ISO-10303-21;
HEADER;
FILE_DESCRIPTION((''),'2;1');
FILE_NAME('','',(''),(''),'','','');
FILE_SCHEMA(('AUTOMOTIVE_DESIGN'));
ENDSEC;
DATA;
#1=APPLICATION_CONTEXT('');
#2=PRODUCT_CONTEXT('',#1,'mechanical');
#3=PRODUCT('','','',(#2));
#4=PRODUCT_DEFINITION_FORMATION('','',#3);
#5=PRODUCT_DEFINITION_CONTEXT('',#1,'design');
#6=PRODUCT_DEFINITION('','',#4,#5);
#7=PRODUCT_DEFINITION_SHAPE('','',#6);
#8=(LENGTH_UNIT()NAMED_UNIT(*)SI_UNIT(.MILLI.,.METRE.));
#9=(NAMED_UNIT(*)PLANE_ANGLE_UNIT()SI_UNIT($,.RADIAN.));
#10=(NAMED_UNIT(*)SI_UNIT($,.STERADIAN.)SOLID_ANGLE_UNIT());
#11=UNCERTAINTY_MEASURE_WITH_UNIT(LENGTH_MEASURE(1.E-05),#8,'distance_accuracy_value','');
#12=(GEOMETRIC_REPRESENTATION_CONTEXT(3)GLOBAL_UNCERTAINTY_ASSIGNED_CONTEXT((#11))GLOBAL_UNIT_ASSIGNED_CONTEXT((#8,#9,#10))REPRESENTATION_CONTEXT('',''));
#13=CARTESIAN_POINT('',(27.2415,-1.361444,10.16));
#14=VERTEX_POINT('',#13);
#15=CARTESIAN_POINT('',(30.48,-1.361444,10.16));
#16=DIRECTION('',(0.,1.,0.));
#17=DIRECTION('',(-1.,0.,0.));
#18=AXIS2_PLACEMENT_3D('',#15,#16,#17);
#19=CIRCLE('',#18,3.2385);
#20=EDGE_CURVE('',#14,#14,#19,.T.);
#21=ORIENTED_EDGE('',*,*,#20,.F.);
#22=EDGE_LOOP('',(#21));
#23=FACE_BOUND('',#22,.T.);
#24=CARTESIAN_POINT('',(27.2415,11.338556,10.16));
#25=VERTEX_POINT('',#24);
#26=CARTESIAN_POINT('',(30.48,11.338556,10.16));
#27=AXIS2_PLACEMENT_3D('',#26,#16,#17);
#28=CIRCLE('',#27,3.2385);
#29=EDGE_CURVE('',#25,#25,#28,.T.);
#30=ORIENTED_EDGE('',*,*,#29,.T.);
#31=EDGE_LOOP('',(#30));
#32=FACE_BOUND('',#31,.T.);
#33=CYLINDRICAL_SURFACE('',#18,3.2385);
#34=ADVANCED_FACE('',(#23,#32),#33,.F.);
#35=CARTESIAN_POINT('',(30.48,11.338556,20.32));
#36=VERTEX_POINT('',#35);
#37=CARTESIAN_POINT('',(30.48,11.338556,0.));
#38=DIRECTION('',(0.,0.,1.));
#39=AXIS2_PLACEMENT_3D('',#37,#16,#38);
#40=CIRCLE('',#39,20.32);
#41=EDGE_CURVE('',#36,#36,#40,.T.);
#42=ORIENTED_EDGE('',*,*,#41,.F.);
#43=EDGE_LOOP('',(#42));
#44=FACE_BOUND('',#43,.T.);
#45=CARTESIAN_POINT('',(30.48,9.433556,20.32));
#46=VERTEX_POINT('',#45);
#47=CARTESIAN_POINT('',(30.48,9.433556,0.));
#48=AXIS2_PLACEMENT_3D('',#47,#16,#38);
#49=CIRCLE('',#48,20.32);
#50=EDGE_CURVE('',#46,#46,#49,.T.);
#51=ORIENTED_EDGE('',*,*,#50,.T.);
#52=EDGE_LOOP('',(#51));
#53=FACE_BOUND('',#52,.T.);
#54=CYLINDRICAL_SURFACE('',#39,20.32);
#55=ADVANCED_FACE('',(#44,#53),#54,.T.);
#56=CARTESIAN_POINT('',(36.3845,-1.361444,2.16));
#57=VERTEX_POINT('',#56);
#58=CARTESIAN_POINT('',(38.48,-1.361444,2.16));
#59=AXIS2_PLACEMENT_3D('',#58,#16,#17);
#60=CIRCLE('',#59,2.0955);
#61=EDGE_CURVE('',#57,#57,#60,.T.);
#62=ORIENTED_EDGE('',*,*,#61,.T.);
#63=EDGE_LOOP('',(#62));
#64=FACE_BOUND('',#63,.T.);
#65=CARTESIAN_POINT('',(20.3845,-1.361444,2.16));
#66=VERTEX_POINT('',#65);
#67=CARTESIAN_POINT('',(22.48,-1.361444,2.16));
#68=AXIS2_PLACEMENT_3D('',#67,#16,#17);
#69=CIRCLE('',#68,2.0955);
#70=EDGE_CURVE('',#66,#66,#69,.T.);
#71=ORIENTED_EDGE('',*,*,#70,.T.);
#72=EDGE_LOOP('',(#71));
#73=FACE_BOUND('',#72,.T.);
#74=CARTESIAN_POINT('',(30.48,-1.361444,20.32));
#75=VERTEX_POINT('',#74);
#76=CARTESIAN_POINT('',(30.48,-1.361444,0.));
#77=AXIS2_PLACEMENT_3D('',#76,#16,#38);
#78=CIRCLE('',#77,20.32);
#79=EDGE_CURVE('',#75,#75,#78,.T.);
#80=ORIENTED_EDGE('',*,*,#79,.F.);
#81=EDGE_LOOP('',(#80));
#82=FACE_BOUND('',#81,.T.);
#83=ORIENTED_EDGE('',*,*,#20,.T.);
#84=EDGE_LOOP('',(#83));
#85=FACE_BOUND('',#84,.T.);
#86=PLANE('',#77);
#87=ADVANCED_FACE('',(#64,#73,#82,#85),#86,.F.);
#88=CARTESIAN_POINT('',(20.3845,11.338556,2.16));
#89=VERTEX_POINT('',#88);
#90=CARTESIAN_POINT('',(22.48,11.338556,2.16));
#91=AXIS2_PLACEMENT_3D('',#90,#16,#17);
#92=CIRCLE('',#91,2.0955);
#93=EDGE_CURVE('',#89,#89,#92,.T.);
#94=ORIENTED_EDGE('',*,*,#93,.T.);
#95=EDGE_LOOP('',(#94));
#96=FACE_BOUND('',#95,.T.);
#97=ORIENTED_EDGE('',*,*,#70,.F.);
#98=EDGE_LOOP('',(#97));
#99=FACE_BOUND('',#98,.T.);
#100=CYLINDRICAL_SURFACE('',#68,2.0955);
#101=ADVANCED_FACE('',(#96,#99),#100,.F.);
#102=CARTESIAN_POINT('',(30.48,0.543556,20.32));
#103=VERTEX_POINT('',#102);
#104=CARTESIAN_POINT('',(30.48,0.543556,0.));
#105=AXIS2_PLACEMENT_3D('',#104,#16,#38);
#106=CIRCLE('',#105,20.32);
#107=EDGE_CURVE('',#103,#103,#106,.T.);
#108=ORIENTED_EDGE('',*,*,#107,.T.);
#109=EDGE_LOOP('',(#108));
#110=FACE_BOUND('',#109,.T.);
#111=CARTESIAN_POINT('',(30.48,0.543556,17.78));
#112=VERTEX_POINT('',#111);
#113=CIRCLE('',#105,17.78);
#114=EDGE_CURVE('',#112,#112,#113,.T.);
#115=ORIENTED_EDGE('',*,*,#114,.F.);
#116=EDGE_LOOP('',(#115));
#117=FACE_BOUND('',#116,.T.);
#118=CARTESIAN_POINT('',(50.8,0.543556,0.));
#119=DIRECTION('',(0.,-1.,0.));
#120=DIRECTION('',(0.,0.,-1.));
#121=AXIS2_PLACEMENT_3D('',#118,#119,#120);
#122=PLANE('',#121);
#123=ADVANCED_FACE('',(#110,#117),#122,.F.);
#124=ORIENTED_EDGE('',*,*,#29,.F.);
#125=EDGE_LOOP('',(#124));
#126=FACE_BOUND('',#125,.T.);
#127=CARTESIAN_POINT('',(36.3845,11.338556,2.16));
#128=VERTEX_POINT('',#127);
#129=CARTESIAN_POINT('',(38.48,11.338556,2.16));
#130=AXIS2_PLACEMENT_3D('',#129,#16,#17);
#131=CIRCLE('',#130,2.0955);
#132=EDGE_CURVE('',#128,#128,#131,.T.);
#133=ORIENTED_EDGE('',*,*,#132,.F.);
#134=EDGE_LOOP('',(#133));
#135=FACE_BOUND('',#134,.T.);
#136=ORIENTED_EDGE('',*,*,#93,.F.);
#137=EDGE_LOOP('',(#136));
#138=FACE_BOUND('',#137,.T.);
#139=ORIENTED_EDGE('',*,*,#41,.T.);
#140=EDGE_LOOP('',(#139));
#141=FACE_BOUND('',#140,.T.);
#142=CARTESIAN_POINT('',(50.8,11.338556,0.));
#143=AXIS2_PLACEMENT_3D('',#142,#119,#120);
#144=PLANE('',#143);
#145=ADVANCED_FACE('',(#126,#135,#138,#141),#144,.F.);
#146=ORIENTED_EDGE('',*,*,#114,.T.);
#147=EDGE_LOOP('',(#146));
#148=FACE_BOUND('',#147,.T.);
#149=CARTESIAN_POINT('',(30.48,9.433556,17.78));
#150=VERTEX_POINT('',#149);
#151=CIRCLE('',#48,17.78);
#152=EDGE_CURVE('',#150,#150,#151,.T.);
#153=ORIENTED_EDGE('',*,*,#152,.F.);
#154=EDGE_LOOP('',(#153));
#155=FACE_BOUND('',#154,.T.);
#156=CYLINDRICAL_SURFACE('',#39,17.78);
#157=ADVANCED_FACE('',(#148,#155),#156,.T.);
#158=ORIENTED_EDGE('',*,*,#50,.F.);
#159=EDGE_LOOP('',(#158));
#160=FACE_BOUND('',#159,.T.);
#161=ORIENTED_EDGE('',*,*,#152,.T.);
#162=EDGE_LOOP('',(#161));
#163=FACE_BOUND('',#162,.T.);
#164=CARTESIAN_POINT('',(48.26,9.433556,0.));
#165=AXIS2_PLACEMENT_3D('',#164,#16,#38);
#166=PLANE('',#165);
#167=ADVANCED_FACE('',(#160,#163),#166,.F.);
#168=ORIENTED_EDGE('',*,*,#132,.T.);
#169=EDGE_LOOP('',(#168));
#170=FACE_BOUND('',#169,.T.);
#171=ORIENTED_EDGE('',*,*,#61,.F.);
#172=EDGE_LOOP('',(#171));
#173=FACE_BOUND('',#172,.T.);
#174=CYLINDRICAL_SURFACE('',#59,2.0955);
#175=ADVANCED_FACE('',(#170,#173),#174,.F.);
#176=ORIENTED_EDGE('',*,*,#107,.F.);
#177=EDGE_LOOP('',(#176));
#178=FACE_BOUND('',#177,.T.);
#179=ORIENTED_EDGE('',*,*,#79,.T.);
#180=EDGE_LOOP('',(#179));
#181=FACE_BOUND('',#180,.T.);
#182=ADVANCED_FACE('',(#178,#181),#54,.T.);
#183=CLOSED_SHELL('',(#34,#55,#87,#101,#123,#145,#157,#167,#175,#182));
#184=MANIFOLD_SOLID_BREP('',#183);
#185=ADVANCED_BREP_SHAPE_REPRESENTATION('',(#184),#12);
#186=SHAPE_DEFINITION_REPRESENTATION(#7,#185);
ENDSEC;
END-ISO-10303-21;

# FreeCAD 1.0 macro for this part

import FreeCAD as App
import Part
import Sketcher
from FreeCAD import Vector
Q = App.Units.Quantity


def add_polygon(sketch, points):
    """Adds a closed chain of lines whose ends are joined by coincident constraints."""
    first, n = sketch.GeometryCount, len(points)
    for a, b in zip(points, points[1:] + points[:1]):
        sketch.addGeometry(Part.LineSegment(App.Vector(*a, 0), App.Vector(*b, 0)), False)
    for i in range(n):
        sketch.addConstraint(Sketcher.Constraint("Coincident", first + i, 2, first + (i + 1) % n, 1))

doc = App.newDocument("Part")
body = doc.addObject("PartDesign::Body", "Body")

# Sketch on XY plane
sketch1 = body.newObject("Sketcher::SketchObject", "Sketch")
sketch1.AttachmentSupport = (doc.getObject("XY_Plane"), [""])
sketch1.MapMode = "FlatFace"
add_polygon(sketch1, [(30.5, -1.4), (50.8, -1.4), (50.8, 0.5), (48.3, 0.5), (48.3, 9.4), (50.8, 9.4), (50.8, 11.3), (30.5, 11.3)])  # lines 0-7
sketch1.addGeometry(Part.LineSegment(Vector(30.5, 11.3, 0), Vector(30.5, -1.4, 0)), True)  # axis
sketch1.addConstraint([
    Sketcher.Constraint("Horizontal", 0),
    Sketcher.Constraint("Vertical", 1),
    Sketcher.Constraint("Horizontal", 2),
    Sketcher.Constraint("Vertical", 3),
    Sketcher.Constraint("Horizontal", 4),
    Sketcher.Constraint("Vertical", 5),
    Sketcher.Constraint("Horizontal", 6),
    Sketcher.Constraint("Vertical", 7),
    Sketcher.Constraint("Vertical", 8),
    Sketcher.Constraint("Coincident", 8, 1, 6, 2),
    Sketcher.Constraint("Horizontal", 0, 2, 8, 2),
    Sketcher.Constraint("Vertical", 1, 2, 4, 2),
    Sketcher.Constraint("Equal", 1, 5),
    Sketcher.Constraint("DistanceX", 0, 1, 0, 2, Q("0.8 in")),
    Sketcher.Constraint("DistanceX", 2, 2, 2, 1, Q("0.1 in")),
    Sketcher.Constraint("DistanceY", 7, 2, 7, 1, Q("0.5 in")),
    Sketcher.Constraint("DistanceX", -1, 1, 0, 2, Q("2 in")),
    Sketcher.Constraint("DistanceY", 3, 1, 3, 2, Q("0.35 in")),
    Sketcher.Constraint("DistanceY", 0, 2, -1, 1, Q("0.0536001 in")),
])
revolution = body.newObject("PartDesign::Revolution", "Revolution")
revolution.Profile = sketch1
revolution.ReferenceAxis = (sketch1, ["Axis0"])
revolution.Angle = 360

# Sketch on XZ plane
sketch2 = body.newObject("Sketcher::SketchObject", "Sketch001")
sketch2.AttachmentSupport = (doc.getObject("XZ_Plane"), [""])
sketch2.MapMode = "FlatFace"
sketch2.AttachmentOffset = App.Placement(Vector(0, 0, -0.4463999 * 25.4), App.Rotation())
sketch2.addGeometry([
    Part.Circle(Vector(30.5, 10.2, 0), Vector(0, 0, 1), 3.2),
    Part.Circle(Vector(22.5, 2.2, 0), Vector(0, 0, 1), 2.1),
    Part.Circle(Vector(38.5, 2.2, 0), Vector(0, 0, 1), 2.1),
], False)
sketch2.addConstraint([
    Sketcher.Constraint("Equal", 1, 2),
    Sketcher.Constraint("Horizontal", 1, 3, 2, 3),
    Sketcher.Constraint("Diameter", 0, Q("0.255 in")),
    Sketcher.Constraint("Diameter", 1, Q("0.165 in")),
    Sketcher.Constraint("DistanceX", -1, 1, 0, 3, Q("1.2 in")),
    Sketcher.Constraint("DistanceY", -1, 1, 0, 3, Q("0.4 in")),
    Sketcher.Constraint("DistanceX", -1, 1, 1, 3, 22.48),
    Sketcher.Constraint("DistanceY", -1, 1, 1, 3, 2.16),
    Sketcher.Constraint("DistanceX", -1, 1, 2, 3, 38.48),
])
pocket1 = body.newObject("PartDesign::Pocket", "Pocket")
pocket1.Profile = sketch2
pocket1.Type = "ThroughAll"
pocket1.Reversed = True

doc.recompute()
